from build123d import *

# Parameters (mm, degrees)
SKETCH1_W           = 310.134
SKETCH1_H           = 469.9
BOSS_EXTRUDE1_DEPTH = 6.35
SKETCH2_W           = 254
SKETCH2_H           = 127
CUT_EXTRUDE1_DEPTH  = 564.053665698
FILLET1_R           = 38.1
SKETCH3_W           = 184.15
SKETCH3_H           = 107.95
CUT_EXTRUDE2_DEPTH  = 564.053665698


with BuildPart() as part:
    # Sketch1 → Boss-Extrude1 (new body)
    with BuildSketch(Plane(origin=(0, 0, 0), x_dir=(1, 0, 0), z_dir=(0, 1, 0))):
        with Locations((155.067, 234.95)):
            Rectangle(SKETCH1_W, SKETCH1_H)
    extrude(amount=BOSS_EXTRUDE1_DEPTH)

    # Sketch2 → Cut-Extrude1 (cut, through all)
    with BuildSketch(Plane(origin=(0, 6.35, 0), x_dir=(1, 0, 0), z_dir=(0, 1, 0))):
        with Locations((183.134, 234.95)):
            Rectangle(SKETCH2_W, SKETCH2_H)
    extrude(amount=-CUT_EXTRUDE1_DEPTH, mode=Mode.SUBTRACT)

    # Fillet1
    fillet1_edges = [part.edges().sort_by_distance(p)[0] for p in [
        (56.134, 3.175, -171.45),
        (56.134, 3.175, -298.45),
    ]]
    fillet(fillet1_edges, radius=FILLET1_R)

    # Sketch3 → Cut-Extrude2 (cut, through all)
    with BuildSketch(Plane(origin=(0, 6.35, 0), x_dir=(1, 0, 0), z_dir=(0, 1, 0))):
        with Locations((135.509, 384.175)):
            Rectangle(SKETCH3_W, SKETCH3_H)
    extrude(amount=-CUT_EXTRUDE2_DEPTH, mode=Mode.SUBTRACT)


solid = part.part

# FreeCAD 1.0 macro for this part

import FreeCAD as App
import Part
import Sketcher

V = App.Vector
Q = App.Units.Quantity


def edges_at(feature, points):
    """Names of the edges that pass closest to the given points."""
    edges = feature.Shape.Edges
    near = lambda p: min(range(len(edges)), key=lambda i: edges[i].distToShape(Part.Vertex(*p))[0])
    return sorted({f"Edge{near(p) + 1}" for p in points})

doc = App.newDocument("Part")
body = doc.addObject("PartDesign::Body", "Body")

sketch1 = body.newObject("Sketcher::SketchObject", "Sketch")
sketch1.AttachmentSupport = (doc.getObject("XZ_Plane"), [""])
sketch1.MapMode = "FlatFace"
sketch1.addGeometry(Part.LineSegment(V(0, -469.9, 0), V(0, 0, 0)), False)
sketch1.addGeometry(Part.LineSegment(V(0, 0, 0), V(310.134, 0, 0)), False)
sketch1.addGeometry(Part.LineSegment(V(310.134, 0, 0), V(310.134, -469.9, 0)), False)
sketch1.addGeometry(Part.LineSegment(V(310.134, -469.9, 0), V(0, -469.9, 0)), False)
sketch1.addConstraint(Sketcher.Constraint("Coincident", 0, 2, 1, 1))
sketch1.addConstraint(Sketcher.Constraint("Coincident", 1, 2, 2, 1))
sketch1.addConstraint(Sketcher.Constraint("Coincident", 2, 2, 3, 1))
sketch1.addConstraint(Sketcher.Constraint("Coincident", 3, 2, 0, 1))
sketch1.addConstraint(Sketcher.Constraint("Vertical", 0))
sketch1.addConstraint(Sketcher.Constraint("Horizontal", 1))
sketch1.addConstraint(Sketcher.Constraint("Vertical", 2))
sketch1.addConstraint(Sketcher.Constraint("Horizontal", 3))
sketch1.addConstraint(Sketcher.Constraint("Coincident", 0, 2, -1, 1))
sketch1.addConstraint(Sketcher.Constraint("DistanceY", 0, 1, 0, 2, Q("18.5 in")))
sketch1.addConstraint(Sketcher.Constraint("DistanceX", 1, 1, 1, 2, Q("12.21 in")))
pad1 = body.newObject("PartDesign::Pad", "Pad")
pad1.Profile = sketch1
pad1.Length = Q("0.25 in")
pad1.Reversed = True

sketch2 = body.newObject("Sketcher::SketchObject", "Sketch001")
sketch2.AttachmentSupport = (doc.getObject("XZ_Plane"), [""])
sketch2.MapMode = "FlatFace"
sketch2.AttachmentOffset = App.Placement(V(0, 0, -0.25 * 25.4), App.Rotation())
sketch2.addGeometry(Part.LineSegment(V(56.134, -298.45, 0), V(56.134, -171.45, 0)), False)
sketch2.addGeometry(Part.LineSegment(V(56.134, -171.45, 0), V(310.134, -171.45, 0)), False)
sketch2.addGeometry(Part.LineSegment(V(310.134, -171.45, 0), V(310.134, -298.45, 0)), False)
sketch2.addGeometry(Part.LineSegment(V(310.134, -298.45, 0), V(56.134, -298.45, 0)), False)
sketch2.addConstraint(Sketcher.Constraint("Coincident", 0, 2, 1, 1))
sketch2.addConstraint(Sketcher.Constraint("Coincident", 1, 2, 2, 1))
sketch2.addConstraint(Sketcher.Constraint("Coincident", 2, 2, 3, 1))
sketch2.addConstraint(Sketcher.Constraint("Coincident", 3, 2, 0, 1))
sketch2.addConstraint(Sketcher.Constraint("Vertical", 0))
sketch2.addConstraint(Sketcher.Constraint("Horizontal", 1))
sketch2.addConstraint(Sketcher.Constraint("Vertical", 2))
sketch2.addConstraint(Sketcher.Constraint("Horizontal", 3))
sketch2.addConstraint(Sketcher.Constraint("DistanceX", 1, 1, 1, 2, Q("10 in")))
sketch2.addConstraint(Sketcher.Constraint("DistanceY", 0, 1, 0, 2, Q("5 in")))
sketch2.addConstraint(Sketcher.Constraint("DistanceX", -1, 1, 0, 2, Q("2.21 in")))
sketch2.addConstraint(Sketcher.Constraint("DistanceY", 0, 2, -1, 1, Q("6.75 in")))
pocket1 = body.newObject("PartDesign::Pocket", "Pocket")
pocket1.Profile = sketch2
pocket1.Type = "ThroughAll"
pocket1.Reversed = True
doc.recompute()

fillet = body.newObject("PartDesign::Fillet", "Fillet")
fillet.Base = (pocket1, edges_at(pocket1, [(56.134, 3.175, -171.45), (56.134, 3.175, -298.45)]))
fillet.Radius = Q("1.5 in")

sketch3 = body.newObject("Sketcher::SketchObject", "Sketch002")
sketch3.AttachmentSupport = (doc.getObject("XZ_Plane"), [""])
sketch3.MapMode = "FlatFace"
sketch3.AttachmentOffset = App.Placement(V(0, 0, -0.25 * 25.4), App.Rotation())
sketch3.addGeometry(Part.LineSegment(V(43.434, -438.15, 0), V(43.434, -330.2, 0)), False)
sketch3.addGeometry(Part.LineSegment(V(43.434, -330.2, 0), V(227.584, -330.2, 0)), False)
sketch3.addGeometry(Part.LineSegment(V(227.584, -330.2, 0), V(227.584, -438.15, 0)), False)
sketch3.addGeometry(Part.LineSegment(V(227.584, -438.15, 0), V(43.434, -438.15, 0)), False)
sketch3.addConstraint(Sketcher.Constraint("Coincident", 0, 2, 1, 1))
sketch3.addConstraint(Sketcher.Constraint("Coincident", 1, 2, 2, 1))
sketch3.addConstraint(Sketcher.Constraint("Coincident", 2, 2, 3, 1))
sketch3.addConstraint(Sketcher.Constraint("Coincident", 3, 2, 0, 1))
sketch3.addConstraint(Sketcher.Constraint("Vertical", 0))
sketch3.addConstraint(Sketcher.Constraint("Horizontal", 1))
sketch3.addConstraint(Sketcher.Constraint("Vertical", 2))
sketch3.addConstraint(Sketcher.Constraint("Horizontal", 3))
sketch3.addConstraint(Sketcher.Constraint("DistanceY", 0, 2, -1, 1, Q("13 in")))
sketch3.addConstraint(Sketcher.Constraint("DistanceX", 1, 1, 1, 2, Q("7.25 in")))
sketch3.addConstraint(Sketcher.Constraint("DistanceY", 0, 1, 0, 2, Q("4.25 in")))
sketch3.addConstraint(Sketcher.Constraint("DistanceX", -1, 1, 0, 2, Q("1.71 in")))
pocket2 = body.newObject("PartDesign::Pocket", "Pocket001")
pocket2.Profile = sketch3
pocket2.Type = "ThroughAll"
pocket2.Reversed = True

doc.recompute()
